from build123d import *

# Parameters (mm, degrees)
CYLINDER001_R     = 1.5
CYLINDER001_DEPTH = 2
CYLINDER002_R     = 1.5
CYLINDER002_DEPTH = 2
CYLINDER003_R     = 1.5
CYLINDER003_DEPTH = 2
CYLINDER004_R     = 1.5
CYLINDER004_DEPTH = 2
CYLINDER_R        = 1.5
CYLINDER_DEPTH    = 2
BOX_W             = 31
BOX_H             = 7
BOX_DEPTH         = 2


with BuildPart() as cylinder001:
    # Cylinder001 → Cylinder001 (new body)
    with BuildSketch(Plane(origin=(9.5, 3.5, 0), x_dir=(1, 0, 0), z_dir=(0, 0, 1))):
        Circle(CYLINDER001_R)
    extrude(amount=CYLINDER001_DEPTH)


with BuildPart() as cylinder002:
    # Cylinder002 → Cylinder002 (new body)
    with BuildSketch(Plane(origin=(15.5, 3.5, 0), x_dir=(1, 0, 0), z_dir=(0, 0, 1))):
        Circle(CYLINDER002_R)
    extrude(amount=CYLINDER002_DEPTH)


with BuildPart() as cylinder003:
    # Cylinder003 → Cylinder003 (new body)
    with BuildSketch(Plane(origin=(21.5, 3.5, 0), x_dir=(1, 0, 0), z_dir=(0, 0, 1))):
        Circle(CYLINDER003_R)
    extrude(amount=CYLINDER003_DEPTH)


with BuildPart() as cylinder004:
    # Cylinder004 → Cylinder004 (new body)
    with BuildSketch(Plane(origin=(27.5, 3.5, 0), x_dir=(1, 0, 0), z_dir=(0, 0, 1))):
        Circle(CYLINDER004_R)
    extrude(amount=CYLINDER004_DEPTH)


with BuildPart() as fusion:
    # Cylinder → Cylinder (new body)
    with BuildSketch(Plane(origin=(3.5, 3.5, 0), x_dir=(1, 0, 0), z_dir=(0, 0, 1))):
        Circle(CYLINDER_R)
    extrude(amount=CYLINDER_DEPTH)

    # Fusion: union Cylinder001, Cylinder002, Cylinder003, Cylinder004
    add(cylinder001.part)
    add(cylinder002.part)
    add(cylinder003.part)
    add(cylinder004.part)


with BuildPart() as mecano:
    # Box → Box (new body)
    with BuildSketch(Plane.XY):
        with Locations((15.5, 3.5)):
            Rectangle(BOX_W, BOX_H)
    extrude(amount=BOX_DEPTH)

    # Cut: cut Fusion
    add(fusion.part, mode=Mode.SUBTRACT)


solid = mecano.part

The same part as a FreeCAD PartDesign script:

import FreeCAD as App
import Part
import Sketcher
from FreeCAD import Vector
Q = App.Units.Quantity

doc = App.newDocument("Part")
params = doc.addObject("Spreadsheet::Sheet", "Params")
for row, (alias, value) in enumerate([
    ("sketch1_diameter", "3 mm"),
    ("pad1_length", "2 mm"),
    ("sketch2_diameter", "3 mm"),
    ("pad2_length", "2 mm"),
    ("sketch3_diameter", "3 mm"),
    ("pad3_length", "2 mm"),
    ("sketch4_diameter", "3 mm"),
    ("pad4_length", "2 mm"),
    ("sketch5_diameter", "3 mm"),
    ("pad5_length", "2 mm"),
    ("sketch6_width", "31 mm"),
    ("sketch6_height", "7 mm"),
    ("pad6_length", "2 mm"),
], start=1):
    params.set(f"A{row}", alias)
    params.set(f"B{row}", "=" + value)
    params.setAlias(f"B{row}", alias)

body = doc.addObject("PartDesign::Body", "Body")

# Sketch on XY plane
sketch1 = doc.addObject("Sketcher::SketchObject", "Sketch")
body.addObject(sketch1)
sketch1.AttachmentSupport = (doc.XY_Plane, [""])
sketch1.MapMode = "FlatFace"
sketch1.addGeometry(Part.Circle(Vector(9.5, 3.5, 0), Vector(0, 0, 1), 1.5), False)
sketch1.addConstraint([
    Sketcher.Constraint("Diameter", 0, Q("3 mm")),
    Sketcher.Constraint("DistanceX", -1, 1, 0, 3, Q("9.5 mm")),
    Sketcher.Constraint("DistanceY", -1, 1, 0, 3, Q("3.5 mm")),
])
sketch1.setExpression("Constraints[0]", "Params.sketch1_diameter")
pad1 = doc.addObject("PartDesign::Pad", "Pad")
body.addObject(pad1)
pad1.Profile = sketch1
pad1.setExpression("Length", "Params.pad1_length")
body2 = doc.addObject("PartDesign::Body", "Body001")

# Sketch on XY plane
sketch2 = doc.addObject("Sketcher::SketchObject", "Sketch001")
body2.addObject(sketch2)
sketch2.AttachmentSupport = (doc.getObject("XY_Plane001"), [""])
sketch2.MapMode = "FlatFace"
sketch2.addGeometry(Part.Circle(Vector(15.5, 3.5, 0), Vector(0, 0, 1), 1.5), False)
sketch2.addConstraint([
    Sketcher.Constraint("Diameter", 0, Q("3 mm")),
    Sketcher.Constraint("DistanceX", -1, 1, 0, 3, Q("15.5 mm")),
    Sketcher.Constraint("DistanceY", -1, 1, 0, 3, Q("3.5 mm")),
])
sketch2.setExpression("Constraints[0]", "Params.sketch2_diameter")
pad2 = doc.addObject("PartDesign::Pad", "Pad001")
body2.addObject(pad2)
pad2.Profile = sketch2
pad2.setExpression("Length", "Params.pad2_length")
body3 = doc.addObject("PartDesign::Body", "Body002")

# Sketch on XY plane
sketch3 = doc.addObject("Sketcher::SketchObject", "Sketch002")
body3.addObject(sketch3)
sketch3.AttachmentSupport = (doc.getObject("XY_Plane002"), [""])
sketch3.MapMode = "FlatFace"
sketch3.addGeometry(Part.Circle(Vector(21.5, 3.5, 0), Vector(0, 0, 1), 1.5), False)
sketch3.addConstraint([
    Sketcher.Constraint("Diameter", 0, Q("3 mm")),
    Sketcher.Constraint("DistanceX", -1, 1, 0, 3, Q("21.5 mm")),
    Sketcher.Constraint("DistanceY", -1, 1, 0, 3, Q("3.5 mm")),
])
sketch3.setExpression("Constraints[0]", "Params.sketch3_diameter")
pad3 = doc.addObject("PartDesign::Pad", "Pad002")
body3.addObject(pad3)
pad3.Profile = sketch3
pad3.setExpression("Length", "Params.pad3_length")
body4 = doc.addObject("PartDesign::Body", "Body003")

# Sketch on XY plane
sketch4 = doc.addObject("Sketcher::SketchObject", "Sketch003")
body4.addObject(sketch4)
sketch4.AttachmentSupport = (doc.getObject("XY_Plane003"), [""])
sketch4.MapMode = "FlatFace"
sketch4.addGeometry(Part.Circle(Vector(27.5, 3.5, 0), Vector(0, 0, 1), 1.5), False)
sketch4.addConstraint([
    Sketcher.Constraint("Diameter", 0, Q("3 mm")),
    Sketcher.Constraint("DistanceX", -1, 1, 0, 3, Q("27.5 mm")),
    Sketcher.Constraint("DistanceY", -1, 1, 0, 3, Q("3.5 mm")),
])
sketch4.setExpression("Constraints[0]", "Params.sketch4_diameter")
pad4 = doc.addObject("PartDesign::Pad", "Pad003")
body4.addObject(pad4)
pad4.Profile = sketch4
pad4.setExpression("Length", "Params.pad4_length")
body5 = doc.addObject("PartDesign::Body", "Body004")
body5.AllowCompound = True

# Sketch on XY plane
sketch5 = doc.addObject("Sketcher::SketchObject", "Sketch004")
body5.addObject(sketch5)
sketch5.AttachmentSupport = (doc.getObject("XY_Plane004"), [""])
sketch5.MapMode = "FlatFace"
sketch5.addGeometry(Part.Circle(Vector(3.5, 3.5, 0), Vector(0, 0, 1), 1.5), False)
sketch5.addConstraint([
    Sketcher.Constraint("Diameter", 0, Q("3 mm")),
    Sketcher.Constraint("DistanceX", -1, 1, 0, 3, Q("3.5 mm")),
    Sketcher.Constraint("DistanceY", -1, 1, 0, 3, Q("3.5 mm")),
])
sketch5.setExpression("Constraints[0]", "Params.sketch5_diameter")
pad5 = doc.addObject("PartDesign::Pad", "Pad004")
body5.addObject(pad5)
pad5.Profile = sketch5
pad5.setExpression("Length", "Params.pad5_length")
doc.recompute()

boolean = doc.addObject("PartDesign::Boolean", "Boolean")
body5.addObject(boolean)
boolean.Type = "Fuse"
boolean.addObjects([body])
doc.recompute()

boolean2 = doc.addObject("PartDesign::Boolean", "Boolean001")
body5.addObject(boolean2)
boolean2.Type = "Fuse"
boolean2.addObjects([body2])
doc.recompute()

boolean3 = doc.addObject("PartDesign::Boolean", "Boolean002")
body5.addObject(boolean3)
boolean3.Type = "Fuse"
boolean3.addObjects([body3])
doc.recompute()

boolean4 = doc.addObject("PartDesign::Boolean", "Boolean003")
body5.addObject(boolean4)
boolean4.Type = "Fuse"
boolean4.addObjects([body4])
body6 = doc.addObject("PartDesign::Body", "Body005")

# Sketch on XY plane
sketch6 = doc.addObject("Sketcher::SketchObject", "Sketch005")
body6.addObject(sketch6)
sketch6.AttachmentSupport = (doc.getObject("XY_Plane005"), [""])
sketch6.MapMode = "FlatFace"
sketch6.addGeometry([
    Part.LineSegment(Vector(0, 7, 0), Vector(0, 0, 0)),
    Part.LineSegment(Vector(0, 0, 0), Vector(31, 0, 0)),
    Part.LineSegment(Vector(31, 0, 0), Vector(31, 7, 0)),
    Part.LineSegment(Vector(31, 7, 0), Vector(0, 7, 0)),
], False)
sketch6.addConstraint([
    Sketcher.Constraint("Coincident", 0, 2, 1, 1),
    Sketcher.Constraint("Coincident", 1, 2, 2, 1),
    Sketcher.Constraint("Coincident", 2, 2, 3, 1),
    Sketcher.Constraint("Coincident", 3, 2, 0, 1),
    Sketcher.Constraint("Vertical", 0),
    Sketcher.Constraint("Horizontal", 1),
    Sketcher.Constraint("Vertical", 2),
    Sketcher.Constraint("Horizontal", 3),
    Sketcher.Constraint("Coincident", 0, 2, -1, 1),
    Sketcher.Constraint("DistanceX", 1, 1, 1, 2, Q("31 mm")),
    Sketcher.Constraint("DistanceY", 0, 2, 0, 1, Q("7 mm")),
])
sketch6.setExpression("Constraints[9]", "Params.sketch6_width")
sketch6.setExpression("Constraints[10]", "Params.sketch6_height")
pad6 = doc.addObject("PartDesign::Pad", "Pad005")
body6.addObject(pad6)
pad6.Profile = sketch6
pad6.setExpression("Length", "Params.pad6_length")
doc.recompute()

boolean5 = doc.addObject("PartDesign::Boolean", "Boolean004")
body6.addObject(boolean5)
boolean5.Type = "Cut"
boolean5.addObjects([body5])

doc.recompute()
